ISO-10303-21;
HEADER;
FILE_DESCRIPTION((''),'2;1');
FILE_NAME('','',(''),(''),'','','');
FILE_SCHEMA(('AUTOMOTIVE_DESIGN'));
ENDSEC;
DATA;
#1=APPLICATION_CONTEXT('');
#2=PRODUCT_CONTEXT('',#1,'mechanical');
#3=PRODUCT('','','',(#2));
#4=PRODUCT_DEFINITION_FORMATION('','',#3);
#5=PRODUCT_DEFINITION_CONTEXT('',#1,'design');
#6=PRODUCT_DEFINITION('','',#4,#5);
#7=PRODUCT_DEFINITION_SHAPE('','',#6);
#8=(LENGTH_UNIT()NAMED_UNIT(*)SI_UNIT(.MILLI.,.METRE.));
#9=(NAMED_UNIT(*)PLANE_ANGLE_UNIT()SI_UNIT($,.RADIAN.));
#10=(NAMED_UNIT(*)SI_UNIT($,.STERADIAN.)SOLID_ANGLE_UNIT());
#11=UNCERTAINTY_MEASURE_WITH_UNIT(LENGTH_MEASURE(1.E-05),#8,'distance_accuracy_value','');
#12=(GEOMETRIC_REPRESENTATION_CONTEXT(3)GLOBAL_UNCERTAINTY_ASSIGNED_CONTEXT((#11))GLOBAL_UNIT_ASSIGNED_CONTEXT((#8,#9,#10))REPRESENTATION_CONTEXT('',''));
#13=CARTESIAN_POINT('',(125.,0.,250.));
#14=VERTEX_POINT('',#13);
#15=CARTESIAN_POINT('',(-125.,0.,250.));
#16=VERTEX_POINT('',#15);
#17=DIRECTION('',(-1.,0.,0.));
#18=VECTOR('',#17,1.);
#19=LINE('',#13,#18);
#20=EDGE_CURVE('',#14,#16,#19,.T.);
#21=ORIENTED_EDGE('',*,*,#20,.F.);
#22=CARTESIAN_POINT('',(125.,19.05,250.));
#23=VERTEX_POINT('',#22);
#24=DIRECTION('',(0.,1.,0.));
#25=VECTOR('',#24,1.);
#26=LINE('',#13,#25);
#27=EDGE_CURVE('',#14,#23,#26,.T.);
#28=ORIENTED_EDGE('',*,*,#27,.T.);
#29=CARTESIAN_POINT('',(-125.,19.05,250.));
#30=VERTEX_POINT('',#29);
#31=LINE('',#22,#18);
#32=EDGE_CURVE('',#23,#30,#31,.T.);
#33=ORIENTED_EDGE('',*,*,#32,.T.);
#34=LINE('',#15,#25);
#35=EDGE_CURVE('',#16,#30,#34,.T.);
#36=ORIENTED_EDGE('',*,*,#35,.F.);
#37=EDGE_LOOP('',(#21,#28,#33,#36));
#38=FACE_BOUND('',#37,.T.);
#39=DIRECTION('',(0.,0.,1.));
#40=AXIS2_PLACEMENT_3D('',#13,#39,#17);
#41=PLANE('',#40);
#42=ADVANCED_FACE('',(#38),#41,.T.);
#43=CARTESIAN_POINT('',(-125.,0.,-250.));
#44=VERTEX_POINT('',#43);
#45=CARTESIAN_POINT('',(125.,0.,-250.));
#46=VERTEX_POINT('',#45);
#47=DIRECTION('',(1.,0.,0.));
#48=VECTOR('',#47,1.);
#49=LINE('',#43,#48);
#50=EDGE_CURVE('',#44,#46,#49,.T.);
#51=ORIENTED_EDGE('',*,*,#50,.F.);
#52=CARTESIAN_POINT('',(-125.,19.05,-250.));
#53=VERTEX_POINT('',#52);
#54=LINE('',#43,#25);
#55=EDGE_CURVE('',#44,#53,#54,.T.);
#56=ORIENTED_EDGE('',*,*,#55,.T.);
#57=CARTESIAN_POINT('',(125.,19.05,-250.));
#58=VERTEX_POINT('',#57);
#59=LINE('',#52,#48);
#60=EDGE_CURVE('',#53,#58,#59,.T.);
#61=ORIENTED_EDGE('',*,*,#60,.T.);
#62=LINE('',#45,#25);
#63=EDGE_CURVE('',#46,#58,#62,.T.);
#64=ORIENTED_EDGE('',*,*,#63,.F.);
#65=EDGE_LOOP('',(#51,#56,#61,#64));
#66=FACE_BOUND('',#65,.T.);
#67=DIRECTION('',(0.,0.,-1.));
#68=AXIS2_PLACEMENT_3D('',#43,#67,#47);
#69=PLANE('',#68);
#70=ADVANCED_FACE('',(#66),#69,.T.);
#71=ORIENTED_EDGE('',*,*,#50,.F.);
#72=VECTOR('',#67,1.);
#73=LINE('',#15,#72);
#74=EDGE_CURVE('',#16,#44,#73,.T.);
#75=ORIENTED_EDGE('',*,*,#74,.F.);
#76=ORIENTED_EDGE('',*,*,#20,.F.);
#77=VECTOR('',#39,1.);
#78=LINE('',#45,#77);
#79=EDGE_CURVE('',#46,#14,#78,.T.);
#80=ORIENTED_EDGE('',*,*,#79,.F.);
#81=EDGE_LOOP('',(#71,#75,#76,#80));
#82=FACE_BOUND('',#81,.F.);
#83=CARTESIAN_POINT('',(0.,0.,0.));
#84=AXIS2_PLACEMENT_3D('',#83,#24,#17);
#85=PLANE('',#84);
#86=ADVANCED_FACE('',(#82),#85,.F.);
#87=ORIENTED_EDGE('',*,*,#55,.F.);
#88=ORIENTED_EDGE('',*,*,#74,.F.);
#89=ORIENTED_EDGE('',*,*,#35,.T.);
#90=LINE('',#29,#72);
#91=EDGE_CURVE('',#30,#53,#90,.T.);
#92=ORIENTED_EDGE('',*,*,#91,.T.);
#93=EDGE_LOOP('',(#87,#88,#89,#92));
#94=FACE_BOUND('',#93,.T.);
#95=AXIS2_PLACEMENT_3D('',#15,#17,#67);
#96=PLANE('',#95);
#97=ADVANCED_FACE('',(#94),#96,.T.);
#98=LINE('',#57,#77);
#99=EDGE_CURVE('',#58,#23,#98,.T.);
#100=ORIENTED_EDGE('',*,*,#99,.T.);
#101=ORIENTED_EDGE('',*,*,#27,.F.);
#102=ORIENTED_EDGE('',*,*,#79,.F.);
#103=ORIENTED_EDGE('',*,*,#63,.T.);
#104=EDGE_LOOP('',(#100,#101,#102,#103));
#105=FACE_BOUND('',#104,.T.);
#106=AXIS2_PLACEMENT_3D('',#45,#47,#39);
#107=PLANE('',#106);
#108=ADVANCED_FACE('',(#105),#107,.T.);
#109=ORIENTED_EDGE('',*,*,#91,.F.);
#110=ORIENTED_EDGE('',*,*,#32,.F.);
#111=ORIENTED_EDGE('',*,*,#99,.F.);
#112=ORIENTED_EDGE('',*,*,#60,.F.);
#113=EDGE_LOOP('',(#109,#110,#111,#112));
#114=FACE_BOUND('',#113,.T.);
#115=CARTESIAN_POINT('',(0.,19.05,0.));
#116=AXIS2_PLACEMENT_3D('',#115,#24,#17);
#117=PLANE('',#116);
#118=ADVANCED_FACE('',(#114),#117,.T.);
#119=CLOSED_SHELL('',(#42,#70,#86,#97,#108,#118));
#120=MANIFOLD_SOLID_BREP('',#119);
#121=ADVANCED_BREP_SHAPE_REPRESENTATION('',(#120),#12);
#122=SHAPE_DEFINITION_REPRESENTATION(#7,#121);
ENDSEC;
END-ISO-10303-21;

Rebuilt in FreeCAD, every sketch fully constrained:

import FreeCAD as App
import Part
import Sketcher
from FreeCAD import Vector
Q = App.Units.Quantity


def add_polygon(sketch, points):
    """Adds a closed chain of lines whose ends are joined by coincident constraints."""
    first, n = sketch.GeometryCount, len(points)
    for a, b in zip(points, points[1:] + points[:1]):
        sketch.addGeometry(Part.LineSegment(App.Vector(*a, 0), App.Vector(*b, 0)), False)
    for i in range(n):
        sketch.addConstraint(Sketcher.Constraint("Coincident", first + i, 2, first + (i + 1) % n, 1))

doc = App.newDocument("Part")
body = doc.addObject("PartDesign::Body", "Body")

# Sketch on XZ plane
sketch1 = body.newObject("Sketcher::SketchObject", "Sketch")
sketch1.AttachmentSupport = (doc.getObject("XZ_Plane"), [""])
sketch1.MapMode = "FlatFace"
add_polygon(sketch1, [(-125, 250), (125, 250), (125, -250), (-125, -250)])  # lines 0-3
sketch1.addConstraint(Sketcher.Constraint("Horizontal", 0))
sketch1.addConstraint(Sketcher.Constraint("Vertical", 1))
sketch1.addConstraint(Sketcher.Constraint("Horizontal", 2))
sketch1.addConstraint(Sketcher.Constraint("Vertical", 3))
sketch1.addConstraint(Sketcher.Constraint("Symmetric", 0, 2, 2, 2, -1, 1))
sketch1.addConstraint(Sketcher.Constraint("DistanceX", 0, 1, 0, 2, Q("250 mm")))
sketch1.addConstraint(Sketcher.Constraint("DistanceY", 1, 2, 1, 1, Q("500 mm")))
pad1 = body.newObject("PartDesign::Pad", "Pad")
pad1.Profile = sketch1
pad1.Length = 19.05
pad1.Reversed = True

doc.recompute()
